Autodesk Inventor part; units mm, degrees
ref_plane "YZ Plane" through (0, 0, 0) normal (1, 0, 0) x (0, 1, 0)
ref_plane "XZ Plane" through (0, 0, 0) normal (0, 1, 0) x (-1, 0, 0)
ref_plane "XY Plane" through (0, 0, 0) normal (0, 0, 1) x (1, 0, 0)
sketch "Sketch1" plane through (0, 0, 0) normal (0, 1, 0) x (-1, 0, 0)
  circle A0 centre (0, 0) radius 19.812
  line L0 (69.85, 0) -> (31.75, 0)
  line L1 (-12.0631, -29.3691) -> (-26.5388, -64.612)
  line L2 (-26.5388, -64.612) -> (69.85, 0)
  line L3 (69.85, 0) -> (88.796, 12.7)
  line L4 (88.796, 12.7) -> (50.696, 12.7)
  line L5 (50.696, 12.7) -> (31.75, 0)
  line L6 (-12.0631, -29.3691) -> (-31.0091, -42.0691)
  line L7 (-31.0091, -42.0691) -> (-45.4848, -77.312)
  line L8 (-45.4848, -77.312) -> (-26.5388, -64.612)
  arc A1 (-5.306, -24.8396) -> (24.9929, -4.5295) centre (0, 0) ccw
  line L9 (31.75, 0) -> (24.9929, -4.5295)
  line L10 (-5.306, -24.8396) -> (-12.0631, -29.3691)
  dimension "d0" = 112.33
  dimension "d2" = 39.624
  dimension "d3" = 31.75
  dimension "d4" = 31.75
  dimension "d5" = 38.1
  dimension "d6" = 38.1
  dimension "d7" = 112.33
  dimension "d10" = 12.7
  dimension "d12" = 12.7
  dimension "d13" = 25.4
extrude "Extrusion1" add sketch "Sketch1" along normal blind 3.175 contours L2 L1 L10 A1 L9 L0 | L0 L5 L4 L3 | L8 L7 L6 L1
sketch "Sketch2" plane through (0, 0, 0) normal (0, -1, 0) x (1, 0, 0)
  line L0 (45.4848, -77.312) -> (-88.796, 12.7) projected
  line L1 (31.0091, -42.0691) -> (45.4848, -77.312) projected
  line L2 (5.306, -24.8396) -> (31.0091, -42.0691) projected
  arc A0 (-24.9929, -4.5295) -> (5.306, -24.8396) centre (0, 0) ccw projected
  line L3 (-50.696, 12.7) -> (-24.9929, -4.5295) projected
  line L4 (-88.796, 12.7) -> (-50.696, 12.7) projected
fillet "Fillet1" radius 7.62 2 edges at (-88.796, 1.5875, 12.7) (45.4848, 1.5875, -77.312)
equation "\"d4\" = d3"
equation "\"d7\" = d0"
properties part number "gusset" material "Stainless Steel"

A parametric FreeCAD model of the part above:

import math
import FreeCAD as App
import Part
import Sketcher
Q = App.Units.Quantity


def edges_at(feature, points):
    """Names of the edges that pass closest to the given points."""
    edges = feature.Shape.Edges
    near = lambda p: min(range(len(edges)), key=lambda i: edges[i].distToShape(Part.Vertex(*p))[0])
    return sorted({f"Edge{near(p) + 1}" for p in points})

doc = App.newDocument("Part")
body = doc.addObject("PartDesign::Body", "Body")

sketch1 = doc.addObject("Sketcher::SketchObject", "Sketch")
body.addObject(sketch1)
sketch1.AttachmentSupport = (doc.XZ_Plane, [""])
sketch1.MapMode = "FlatFace"
sketch1.addGeometry(Part.LineSegment(App.Vector(27, -65, 0), App.Vector(-70, 0, 0)), False)
sketch1.addGeometry(Part.LineSegment(App.Vector(-70, 0, 0), App.Vector(-89, 13, 0)), False)
sketch1.addGeometry(Part.LineSegment(App.Vector(-89, 13, 0), App.Vector(-51, 13, 0)), False)
sketch1.addGeometry(Part.LineSegment(App.Vector(-51, 13, 0), App.Vector(-32, 0, 0)), False)
sketch1.addGeometry(Part.LineSegment(App.Vector(-32, 0, 0), App.Vector(-25, -5, 0)), False)
sketch1.addGeometry(Part.ArcOfCircle(Part.Circle(App.Vector(0, 0, 0), App.Vector(0, 0, 1), 25), math.radians(-170), math.radians(-78)), False)
sketch1.addGeometry(Part.LineSegment(App.Vector(5, -25, 0), App.Vector(12, -29, 0)), False)
sketch1.addGeometry(Part.LineSegment(App.Vector(12, -29, 0), App.Vector(31, -42, 0)), False)
sketch1.addGeometry(Part.LineSegment(App.Vector(31, -42, 0), App.Vector(45, -77, 0)), False)
sketch1.addGeometry(Part.LineSegment(App.Vector(45, -77, 0), App.Vector(27, -65, 0)), False)
sketch1.addConstraint(Sketcher.Constraint("Coincident", 0, 2, 1, 1))
sketch1.addConstraint(Sketcher.Constraint("Coincident", 1, 2, 2, 1))
sketch1.addConstraint(Sketcher.Constraint("Coincident", 2, 2, 3, 1))
sketch1.addConstraint(Sketcher.Constraint("Coincident", 3, 2, 4, 1))
sketch1.addConstraint(Sketcher.Constraint("Coincident", 4, 2, 5, 1))
sketch1.addConstraint(Sketcher.Constraint("Coincident", 5, 2, 6, 1))
sketch1.addConstraint(Sketcher.Constraint("Coincident", 6, 2, 7, 1))
sketch1.addConstraint(Sketcher.Constraint("Coincident", 7, 2, 8, 1))
sketch1.addConstraint(Sketcher.Constraint("Coincident", 8, 2, 9, 1))
sketch1.addConstraint(Sketcher.Constraint("Coincident", 9, 2, 0, 1))
sketch1.addConstraint(Sketcher.Constraint("Horizontal", 2))
sketch1.addConstraint(Sketcher.Constraint("Coincident", 5, 3, -1, 1))
sketch1.addConstraint(Sketcher.Constraint("PointOnObject", 0, 2, -1))
sketch1.addConstraint(Sketcher.Constraint("PointOnObject", 3, 2, -1))
sketch1.addConstraint(Sketcher.Constraint("Parallel", 0, 1))
sketch1.addConstraint(Sketcher.Constraint("Parallel", 1, 3))
sketch1.addConstraint(Sketcher.Constraint("Parallel", 3, 4))
sketch1.addConstraint(Sketcher.Constraint("Parallel", 4, 6))
sketch1.addConstraint(Sketcher.Constraint("Parallel", 6, 7))
sketch1.addConstraint(Sketcher.Constraint("Parallel", 7, 9))
sketch1.addConstraint(Sketcher.Constraint("Equal", 4, 6))
sketch1.addConstraint(Sketcher.Constraint("Equal", 3, 7))
sketch1.addConstraint(Sketcher.Constraint("Equal", 7, 9))
sketch1.addConstraint(Sketcher.Constraint("Radius", 5, Q("1 in")))
sketch1.addConstraint(Sketcher.Constraint("DistanceX", 2, 1, 2, 2, Q("1.5 in")))
sketch1.addConstraint(Sketcher.Constraint("Distance", 8, Q("1.5 in")))
sketch1.addConstraint(Sketcher.Constraint("DistanceY", -1, 1, 1, 2, Q("0.5 in")))
sketch1.addConstraint(Sketcher.Constraint("DistanceX", 3, 2, -1, 1, Q("1.25 in")))
sketch1.addConstraint(Sketcher.Constraint("Angle", 8, Q("-67.67 deg")))
sketch1.addConstraint(Sketcher.Constraint("DistanceX", 9, 2, 7, 2, Q("0.176 in")))
pad1 = doc.addObject("PartDesign::Pad", "Pad")
body.addObject(pad1)
pad1.Profile = sketch1
pad1.Length = Q("0.125 in")
pad1.Reversed = True
doc.recompute()

fillet = doc.addObject("PartDesign::Fillet", "Fillet")
body.addObject(fillet)
fillet.Base = (pad1, edges_at(pad1, [(-88.796, 1.587, 12.7), (45.485, 1.587, -77.312)]))
fillet.Radius = Q("0.3 in")

doc.recompute()
